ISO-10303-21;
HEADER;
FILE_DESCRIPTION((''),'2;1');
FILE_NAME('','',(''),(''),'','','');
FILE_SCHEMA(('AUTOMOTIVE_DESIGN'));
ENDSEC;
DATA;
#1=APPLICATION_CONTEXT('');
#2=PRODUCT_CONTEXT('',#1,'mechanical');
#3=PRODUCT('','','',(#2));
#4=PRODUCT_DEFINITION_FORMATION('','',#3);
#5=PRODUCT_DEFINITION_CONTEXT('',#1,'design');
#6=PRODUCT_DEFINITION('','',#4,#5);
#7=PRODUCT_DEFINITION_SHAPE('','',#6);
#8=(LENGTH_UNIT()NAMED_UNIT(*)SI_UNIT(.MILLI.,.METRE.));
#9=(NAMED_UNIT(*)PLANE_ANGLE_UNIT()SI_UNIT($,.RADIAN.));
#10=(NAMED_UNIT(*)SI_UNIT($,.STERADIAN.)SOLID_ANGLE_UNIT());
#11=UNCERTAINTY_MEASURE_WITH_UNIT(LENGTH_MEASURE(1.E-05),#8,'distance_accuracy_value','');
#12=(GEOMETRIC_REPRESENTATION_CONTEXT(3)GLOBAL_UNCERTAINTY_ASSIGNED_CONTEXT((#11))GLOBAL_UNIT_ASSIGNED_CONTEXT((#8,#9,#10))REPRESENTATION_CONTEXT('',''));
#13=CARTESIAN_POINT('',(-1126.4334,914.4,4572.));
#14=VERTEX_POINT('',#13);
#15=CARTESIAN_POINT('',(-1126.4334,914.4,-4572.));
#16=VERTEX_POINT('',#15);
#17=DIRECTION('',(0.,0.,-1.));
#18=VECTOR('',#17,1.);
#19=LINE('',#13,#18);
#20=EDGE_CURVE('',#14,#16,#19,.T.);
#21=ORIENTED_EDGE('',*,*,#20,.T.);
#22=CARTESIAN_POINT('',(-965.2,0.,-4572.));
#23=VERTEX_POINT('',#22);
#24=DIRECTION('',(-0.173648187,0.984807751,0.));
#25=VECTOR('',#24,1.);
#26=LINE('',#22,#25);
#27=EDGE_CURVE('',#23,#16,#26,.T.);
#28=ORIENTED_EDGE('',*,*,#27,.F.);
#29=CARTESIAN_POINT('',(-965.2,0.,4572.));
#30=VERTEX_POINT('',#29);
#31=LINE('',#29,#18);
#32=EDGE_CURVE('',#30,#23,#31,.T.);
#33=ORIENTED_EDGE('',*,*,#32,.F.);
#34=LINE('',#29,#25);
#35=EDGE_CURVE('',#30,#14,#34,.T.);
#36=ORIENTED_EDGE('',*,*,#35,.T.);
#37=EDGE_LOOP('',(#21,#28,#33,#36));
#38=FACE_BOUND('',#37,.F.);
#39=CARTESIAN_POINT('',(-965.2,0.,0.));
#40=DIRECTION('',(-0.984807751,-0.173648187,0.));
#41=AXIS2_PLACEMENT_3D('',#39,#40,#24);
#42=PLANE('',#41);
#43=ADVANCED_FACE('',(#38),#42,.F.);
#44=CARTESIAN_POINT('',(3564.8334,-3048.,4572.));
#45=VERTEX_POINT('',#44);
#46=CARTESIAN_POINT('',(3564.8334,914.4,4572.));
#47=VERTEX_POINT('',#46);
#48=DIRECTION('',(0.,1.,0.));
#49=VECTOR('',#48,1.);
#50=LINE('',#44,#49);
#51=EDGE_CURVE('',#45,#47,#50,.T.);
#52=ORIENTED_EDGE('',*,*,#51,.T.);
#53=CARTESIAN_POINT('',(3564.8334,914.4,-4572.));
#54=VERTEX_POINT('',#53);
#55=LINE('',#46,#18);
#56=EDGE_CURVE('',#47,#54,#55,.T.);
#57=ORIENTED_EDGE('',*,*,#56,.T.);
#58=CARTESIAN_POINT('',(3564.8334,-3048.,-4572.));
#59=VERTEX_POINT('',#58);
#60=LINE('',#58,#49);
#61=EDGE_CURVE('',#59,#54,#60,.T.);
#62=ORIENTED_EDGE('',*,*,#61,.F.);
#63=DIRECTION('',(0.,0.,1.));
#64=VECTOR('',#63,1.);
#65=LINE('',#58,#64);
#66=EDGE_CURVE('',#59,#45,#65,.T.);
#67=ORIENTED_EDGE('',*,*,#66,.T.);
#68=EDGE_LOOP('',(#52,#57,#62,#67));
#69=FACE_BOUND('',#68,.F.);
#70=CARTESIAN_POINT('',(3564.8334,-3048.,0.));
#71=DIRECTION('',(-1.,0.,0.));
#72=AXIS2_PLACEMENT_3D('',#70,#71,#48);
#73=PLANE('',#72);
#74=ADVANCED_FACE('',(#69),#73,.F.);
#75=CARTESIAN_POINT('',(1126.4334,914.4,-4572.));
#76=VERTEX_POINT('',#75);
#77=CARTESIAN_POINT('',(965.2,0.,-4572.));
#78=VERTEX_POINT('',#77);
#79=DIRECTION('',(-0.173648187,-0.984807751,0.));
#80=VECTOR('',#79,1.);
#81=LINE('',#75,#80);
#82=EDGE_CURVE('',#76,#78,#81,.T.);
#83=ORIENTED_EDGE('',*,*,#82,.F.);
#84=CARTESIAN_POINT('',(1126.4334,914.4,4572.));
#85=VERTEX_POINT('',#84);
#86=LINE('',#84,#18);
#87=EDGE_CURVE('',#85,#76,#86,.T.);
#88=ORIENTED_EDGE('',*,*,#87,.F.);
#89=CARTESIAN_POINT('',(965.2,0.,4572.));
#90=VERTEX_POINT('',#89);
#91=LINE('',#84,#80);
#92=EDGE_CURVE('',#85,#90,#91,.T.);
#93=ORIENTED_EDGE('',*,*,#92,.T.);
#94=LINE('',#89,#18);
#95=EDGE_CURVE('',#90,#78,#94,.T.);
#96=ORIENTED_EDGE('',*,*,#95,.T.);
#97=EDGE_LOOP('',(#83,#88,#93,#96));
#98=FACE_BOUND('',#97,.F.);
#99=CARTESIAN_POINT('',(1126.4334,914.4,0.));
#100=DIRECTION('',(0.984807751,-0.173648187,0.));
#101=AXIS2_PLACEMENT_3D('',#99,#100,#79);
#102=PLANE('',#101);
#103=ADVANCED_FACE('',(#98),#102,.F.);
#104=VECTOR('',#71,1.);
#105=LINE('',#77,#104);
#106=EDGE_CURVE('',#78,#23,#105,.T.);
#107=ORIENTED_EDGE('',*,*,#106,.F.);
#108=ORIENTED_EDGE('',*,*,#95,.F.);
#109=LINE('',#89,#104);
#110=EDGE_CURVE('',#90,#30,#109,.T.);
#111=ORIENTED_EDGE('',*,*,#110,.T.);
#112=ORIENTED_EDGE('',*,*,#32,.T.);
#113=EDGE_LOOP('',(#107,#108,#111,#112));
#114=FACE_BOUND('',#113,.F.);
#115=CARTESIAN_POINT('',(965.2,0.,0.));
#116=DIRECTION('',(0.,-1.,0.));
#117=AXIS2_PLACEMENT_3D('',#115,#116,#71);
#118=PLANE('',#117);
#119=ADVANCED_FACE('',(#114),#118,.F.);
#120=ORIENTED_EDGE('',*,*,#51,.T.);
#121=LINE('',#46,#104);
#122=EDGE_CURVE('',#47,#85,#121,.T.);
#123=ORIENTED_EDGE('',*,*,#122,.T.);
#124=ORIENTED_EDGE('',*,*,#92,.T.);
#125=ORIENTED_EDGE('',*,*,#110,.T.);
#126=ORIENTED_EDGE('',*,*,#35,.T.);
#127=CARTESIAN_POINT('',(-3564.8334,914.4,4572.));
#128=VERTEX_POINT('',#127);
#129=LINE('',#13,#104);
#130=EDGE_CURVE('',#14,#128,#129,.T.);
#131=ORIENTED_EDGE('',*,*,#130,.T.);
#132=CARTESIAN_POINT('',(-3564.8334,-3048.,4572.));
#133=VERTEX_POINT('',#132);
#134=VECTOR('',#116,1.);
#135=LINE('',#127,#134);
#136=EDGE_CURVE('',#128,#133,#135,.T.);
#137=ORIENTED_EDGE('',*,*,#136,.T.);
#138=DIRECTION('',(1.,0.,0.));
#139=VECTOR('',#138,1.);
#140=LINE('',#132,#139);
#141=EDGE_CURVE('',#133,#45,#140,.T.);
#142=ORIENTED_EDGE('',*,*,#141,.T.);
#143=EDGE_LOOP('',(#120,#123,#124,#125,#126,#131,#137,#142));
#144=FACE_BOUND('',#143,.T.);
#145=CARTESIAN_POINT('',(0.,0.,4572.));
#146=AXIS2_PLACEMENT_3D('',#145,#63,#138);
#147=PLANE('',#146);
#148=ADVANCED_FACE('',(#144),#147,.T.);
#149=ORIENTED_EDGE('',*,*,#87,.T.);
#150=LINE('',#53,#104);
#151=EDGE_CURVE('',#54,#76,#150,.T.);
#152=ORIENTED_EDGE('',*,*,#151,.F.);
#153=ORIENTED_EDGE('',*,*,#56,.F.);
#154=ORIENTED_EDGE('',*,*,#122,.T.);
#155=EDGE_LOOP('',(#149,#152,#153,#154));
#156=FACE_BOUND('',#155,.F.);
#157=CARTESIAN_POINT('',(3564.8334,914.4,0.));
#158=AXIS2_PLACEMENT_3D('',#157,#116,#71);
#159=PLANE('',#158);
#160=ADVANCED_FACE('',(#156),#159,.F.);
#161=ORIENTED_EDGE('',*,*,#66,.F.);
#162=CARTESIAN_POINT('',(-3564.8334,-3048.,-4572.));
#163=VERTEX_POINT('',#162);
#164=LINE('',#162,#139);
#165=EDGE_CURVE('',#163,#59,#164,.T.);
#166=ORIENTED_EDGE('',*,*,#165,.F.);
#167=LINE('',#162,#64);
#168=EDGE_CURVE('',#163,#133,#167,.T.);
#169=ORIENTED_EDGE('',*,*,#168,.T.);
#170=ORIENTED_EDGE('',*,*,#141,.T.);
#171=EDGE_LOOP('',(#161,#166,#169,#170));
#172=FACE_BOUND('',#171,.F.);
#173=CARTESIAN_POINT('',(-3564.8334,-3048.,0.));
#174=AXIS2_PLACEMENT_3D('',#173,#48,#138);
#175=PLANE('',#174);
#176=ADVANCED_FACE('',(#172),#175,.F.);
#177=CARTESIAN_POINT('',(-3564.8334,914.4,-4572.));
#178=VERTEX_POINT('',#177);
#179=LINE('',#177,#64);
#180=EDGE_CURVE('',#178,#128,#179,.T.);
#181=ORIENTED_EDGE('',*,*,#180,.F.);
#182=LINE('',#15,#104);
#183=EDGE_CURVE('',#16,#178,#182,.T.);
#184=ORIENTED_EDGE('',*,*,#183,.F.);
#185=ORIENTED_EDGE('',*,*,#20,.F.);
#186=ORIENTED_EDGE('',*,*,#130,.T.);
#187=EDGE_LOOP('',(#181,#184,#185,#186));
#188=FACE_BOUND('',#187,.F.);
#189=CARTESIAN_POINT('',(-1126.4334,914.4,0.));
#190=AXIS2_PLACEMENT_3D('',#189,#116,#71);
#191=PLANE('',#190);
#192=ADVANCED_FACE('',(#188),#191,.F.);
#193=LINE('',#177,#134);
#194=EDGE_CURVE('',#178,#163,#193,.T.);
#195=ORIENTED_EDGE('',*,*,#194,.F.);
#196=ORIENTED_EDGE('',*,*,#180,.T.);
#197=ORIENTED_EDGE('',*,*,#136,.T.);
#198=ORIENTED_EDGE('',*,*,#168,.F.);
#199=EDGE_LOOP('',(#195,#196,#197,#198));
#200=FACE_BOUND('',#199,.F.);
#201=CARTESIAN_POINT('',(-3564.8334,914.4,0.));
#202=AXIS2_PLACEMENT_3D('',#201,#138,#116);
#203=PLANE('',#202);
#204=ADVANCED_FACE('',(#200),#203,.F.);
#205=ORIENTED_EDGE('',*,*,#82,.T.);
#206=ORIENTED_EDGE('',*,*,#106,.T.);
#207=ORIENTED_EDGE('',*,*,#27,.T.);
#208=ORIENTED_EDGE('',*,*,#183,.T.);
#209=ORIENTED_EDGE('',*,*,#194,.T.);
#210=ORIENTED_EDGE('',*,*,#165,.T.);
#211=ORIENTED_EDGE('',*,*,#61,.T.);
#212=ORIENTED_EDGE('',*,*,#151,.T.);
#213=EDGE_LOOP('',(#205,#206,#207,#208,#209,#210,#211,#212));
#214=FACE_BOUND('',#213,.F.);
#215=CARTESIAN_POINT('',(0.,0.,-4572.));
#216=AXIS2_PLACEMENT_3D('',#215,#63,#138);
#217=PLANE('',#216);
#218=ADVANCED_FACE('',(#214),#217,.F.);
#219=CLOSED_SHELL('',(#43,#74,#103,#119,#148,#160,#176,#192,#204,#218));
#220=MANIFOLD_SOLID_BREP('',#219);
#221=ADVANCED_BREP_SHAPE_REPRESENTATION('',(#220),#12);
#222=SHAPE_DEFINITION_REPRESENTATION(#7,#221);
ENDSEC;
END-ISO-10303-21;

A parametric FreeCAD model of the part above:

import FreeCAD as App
import Part
import Sketcher

V = App.Vector
Q = App.Units.Quantity

doc = App.newDocument("Part")
body = doc.addObject("PartDesign::Body", "Body")

# Sketch on XY plane
sketch1 = doc.addObject("Sketcher::SketchObject", "Sketch")
body.addObject(sketch1)
sketch1.AttachmentSupport = (doc.XY_Plane, [""])
sketch1.MapMode = "FlatFace"
sketch1.addGeometry([
    Part.LineSegment(V(-1126, 914, 0), V(-3565, 914, 0)),  # 0
    Part.LineSegment(V(-3565, 914, 0), V(-3565, -3048, 0)),  # 1
    Part.LineSegment(V(-3565, -3048, 0), V(3565, -3048, 0)),  # 2
    Part.LineSegment(V(3565, -3048, 0), V(3565, 914, 0)),  # 3
    Part.LineSegment(V(3565, 914, 0), V(1126, 914, 0)),  # 4
    Part.LineSegment(V(1126, 914, 0), V(965, 0, 0)),  # 5
    Part.LineSegment(V(965, 0, 0), V(-965, 0, 0)),  # 6
    Part.LineSegment(V(-965, 0, 0), V(-1126, 914, 0)),  # 7
], False)
sketch1.addConstraint([
    Sketcher.Constraint("Coincident", 0, 2, 1, 1),
    Sketcher.Constraint("Coincident", 1, 2, 2, 1),
    Sketcher.Constraint("Coincident", 2, 2, 3, 1),
    Sketcher.Constraint("Coincident", 3, 2, 4, 1),
    Sketcher.Constraint("Coincident", 4, 2, 5, 1),
    Sketcher.Constraint("Coincident", 5, 2, 6, 1),
    Sketcher.Constraint("Coincident", 6, 2, 7, 1),
    Sketcher.Constraint("Coincident", 7, 2, 0, 1),
    Sketcher.Constraint("Horizontal", 0),
    Sketcher.Constraint("Vertical", 1),
    Sketcher.Constraint("Horizontal", 2),
    Sketcher.Constraint("Vertical", 3),
    Sketcher.Constraint("Horizontal", 4),
    Sketcher.Constraint("Horizontal", 6),
    Sketcher.Constraint("Symmetric", 5, 2, 6, 2, -1, 1),
    Sketcher.Constraint("Symmetric", 0, 2, 3, 2, -2),
    Sketcher.Constraint("Equal", 0, 4),
    Sketcher.Constraint("DistanceX", 0, 2, 0, 1, Q("96 in")),
    Sketcher.Constraint("DistanceX", 6, 2, 6, 1, Q("76 in")),
    Sketcher.Constraint("DistanceY", -1, 1, 0, 2, Q("36 in")),
    Sketcher.Constraint("DistanceY", 1, 2, -1, 1, Q("120 in")),
    Sketcher.Constraint("Angle", 5, Q("-100 deg")),
])
pad1 = doc.addObject("PartDesign::Pad", "Pad")
body.addObject(pad1)
pad1.Profile = sketch1
pad1.Length = Q("360 in")
pad1.Midplane = True

doc.recompute()
